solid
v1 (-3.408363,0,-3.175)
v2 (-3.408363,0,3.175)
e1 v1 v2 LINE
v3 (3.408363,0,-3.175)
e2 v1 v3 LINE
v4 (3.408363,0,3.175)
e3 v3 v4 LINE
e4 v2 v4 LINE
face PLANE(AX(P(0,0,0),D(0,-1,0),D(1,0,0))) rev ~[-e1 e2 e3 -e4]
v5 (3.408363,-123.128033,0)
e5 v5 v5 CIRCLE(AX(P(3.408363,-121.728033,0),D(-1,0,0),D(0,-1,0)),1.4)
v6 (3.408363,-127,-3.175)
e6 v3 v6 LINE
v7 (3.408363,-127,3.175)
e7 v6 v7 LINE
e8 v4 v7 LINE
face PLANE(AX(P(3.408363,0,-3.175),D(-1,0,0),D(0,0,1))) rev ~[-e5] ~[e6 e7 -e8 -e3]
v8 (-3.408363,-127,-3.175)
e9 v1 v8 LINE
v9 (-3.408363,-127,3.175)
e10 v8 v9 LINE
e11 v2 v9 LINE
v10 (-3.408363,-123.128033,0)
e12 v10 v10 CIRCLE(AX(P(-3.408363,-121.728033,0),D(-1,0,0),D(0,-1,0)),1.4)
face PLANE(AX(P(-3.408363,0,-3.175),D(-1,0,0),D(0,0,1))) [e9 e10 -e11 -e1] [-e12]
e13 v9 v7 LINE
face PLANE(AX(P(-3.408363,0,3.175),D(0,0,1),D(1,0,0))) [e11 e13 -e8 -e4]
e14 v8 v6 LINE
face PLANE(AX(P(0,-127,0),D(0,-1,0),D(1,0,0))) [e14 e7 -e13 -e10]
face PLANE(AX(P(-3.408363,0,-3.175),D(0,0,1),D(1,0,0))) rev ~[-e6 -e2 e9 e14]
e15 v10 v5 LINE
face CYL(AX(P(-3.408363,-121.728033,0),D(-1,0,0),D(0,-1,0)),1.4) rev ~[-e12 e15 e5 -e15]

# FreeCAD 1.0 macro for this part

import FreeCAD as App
import Part
import Sketcher
from FreeCAD import Vector
Q = App.Units.Quantity


def add_polygon(sketch, points):
    """Adds a closed chain of lines whose ends are joined by coincident constraints."""
    first, n = sketch.GeometryCount, len(points)
    for a, b in zip(points, points[1:] + points[:1]):
        sketch.addGeometry(Part.LineSegment(App.Vector(*a, 0), App.Vector(*b, 0)), False)
    for i in range(n):
        sketch.addConstraint(Sketcher.Constraint("Coincident", first + i, 2, first + (i + 1) % n, 1))

doc = App.newDocument("Part")
params = doc.addObject("Spreadsheet::Sheet", "Params")
for row, (alias, value) in enumerate([
    ("sketch1_height", "0.25 in"),
    ("pad1_length", "5 in"),
], start=1):
    params.set(f"A{row}", alias)
    params.set(f"B{row}", "=" + value)
    params.setAlias(f"B{row}", alias)

body = doc.addObject("PartDesign::Body", "Body")

# Sketch on XZ plane
sketch1 = body.newObject("Sketcher::SketchObject", "Sketch")
sketch1.AttachmentSupport = (doc.getObject("XZ_Plane"), [""])
sketch1.MapMode = "FlatFace"
add_polygon(sketch1, [(-3, 3), (-3, -3), (3, -3), (3, 3)])  # lines 0-3
sketch1.addConstraint([
    Sketcher.Constraint("Vertical", 0),
    Sketcher.Constraint("Horizontal", 1),
    Sketcher.Constraint("Vertical", 2),
    Sketcher.Constraint("Horizontal", 3),
    Sketcher.Constraint("Symmetric", 0, 2, 2, 2, -1, 1),
    Sketcher.Constraint("DistanceY", 0, 2, 0, 1, Q("0.25 in")),
    Sketcher.Constraint("DistanceX", 1, 1, 1, 2, Q("6.816726 mm")),
])
sketch1.setExpression("Constraints[9]", "Params.sketch1_height")
pad1 = body.newObject("PartDesign::Pad", "Pad")
pad1.Profile = sketch1
pad1.setExpression("Length", "Params.pad1_length")

# Sketch on YZ plane
sketch2 = body.newObject("Sketcher::SketchObject", "Sketch001")
sketch2.AttachmentSupport = (doc.getObject("YZ_Plane"), [""])
sketch2.MapMode = "FlatFace"
sketch2.AttachmentOffset = App.Placement(Vector(0, 0, -3.408363), App.Rotation())
sketch2.addGeometry(Part.Circle(Vector(-121.7, 0, 0), Vector(0, 0, 1), 1.4), False)
sketch2.addConstraint([
    Sketcher.Constraint("PointOnObject", 0, 3, -1),
    Sketcher.Constraint("Diameter", 0, Q("2.8 mm")),
    Sketcher.Constraint("DistanceX", 0, 3, -1, 1, Q("121.728033 mm")),
])
pocket1 = body.newObject("PartDesign::Pocket", "Pocket")
pocket1.Profile = sketch2
pocket1.Type = "ThroughAll"
pocket1.Reversed = True

doc.recompute()
